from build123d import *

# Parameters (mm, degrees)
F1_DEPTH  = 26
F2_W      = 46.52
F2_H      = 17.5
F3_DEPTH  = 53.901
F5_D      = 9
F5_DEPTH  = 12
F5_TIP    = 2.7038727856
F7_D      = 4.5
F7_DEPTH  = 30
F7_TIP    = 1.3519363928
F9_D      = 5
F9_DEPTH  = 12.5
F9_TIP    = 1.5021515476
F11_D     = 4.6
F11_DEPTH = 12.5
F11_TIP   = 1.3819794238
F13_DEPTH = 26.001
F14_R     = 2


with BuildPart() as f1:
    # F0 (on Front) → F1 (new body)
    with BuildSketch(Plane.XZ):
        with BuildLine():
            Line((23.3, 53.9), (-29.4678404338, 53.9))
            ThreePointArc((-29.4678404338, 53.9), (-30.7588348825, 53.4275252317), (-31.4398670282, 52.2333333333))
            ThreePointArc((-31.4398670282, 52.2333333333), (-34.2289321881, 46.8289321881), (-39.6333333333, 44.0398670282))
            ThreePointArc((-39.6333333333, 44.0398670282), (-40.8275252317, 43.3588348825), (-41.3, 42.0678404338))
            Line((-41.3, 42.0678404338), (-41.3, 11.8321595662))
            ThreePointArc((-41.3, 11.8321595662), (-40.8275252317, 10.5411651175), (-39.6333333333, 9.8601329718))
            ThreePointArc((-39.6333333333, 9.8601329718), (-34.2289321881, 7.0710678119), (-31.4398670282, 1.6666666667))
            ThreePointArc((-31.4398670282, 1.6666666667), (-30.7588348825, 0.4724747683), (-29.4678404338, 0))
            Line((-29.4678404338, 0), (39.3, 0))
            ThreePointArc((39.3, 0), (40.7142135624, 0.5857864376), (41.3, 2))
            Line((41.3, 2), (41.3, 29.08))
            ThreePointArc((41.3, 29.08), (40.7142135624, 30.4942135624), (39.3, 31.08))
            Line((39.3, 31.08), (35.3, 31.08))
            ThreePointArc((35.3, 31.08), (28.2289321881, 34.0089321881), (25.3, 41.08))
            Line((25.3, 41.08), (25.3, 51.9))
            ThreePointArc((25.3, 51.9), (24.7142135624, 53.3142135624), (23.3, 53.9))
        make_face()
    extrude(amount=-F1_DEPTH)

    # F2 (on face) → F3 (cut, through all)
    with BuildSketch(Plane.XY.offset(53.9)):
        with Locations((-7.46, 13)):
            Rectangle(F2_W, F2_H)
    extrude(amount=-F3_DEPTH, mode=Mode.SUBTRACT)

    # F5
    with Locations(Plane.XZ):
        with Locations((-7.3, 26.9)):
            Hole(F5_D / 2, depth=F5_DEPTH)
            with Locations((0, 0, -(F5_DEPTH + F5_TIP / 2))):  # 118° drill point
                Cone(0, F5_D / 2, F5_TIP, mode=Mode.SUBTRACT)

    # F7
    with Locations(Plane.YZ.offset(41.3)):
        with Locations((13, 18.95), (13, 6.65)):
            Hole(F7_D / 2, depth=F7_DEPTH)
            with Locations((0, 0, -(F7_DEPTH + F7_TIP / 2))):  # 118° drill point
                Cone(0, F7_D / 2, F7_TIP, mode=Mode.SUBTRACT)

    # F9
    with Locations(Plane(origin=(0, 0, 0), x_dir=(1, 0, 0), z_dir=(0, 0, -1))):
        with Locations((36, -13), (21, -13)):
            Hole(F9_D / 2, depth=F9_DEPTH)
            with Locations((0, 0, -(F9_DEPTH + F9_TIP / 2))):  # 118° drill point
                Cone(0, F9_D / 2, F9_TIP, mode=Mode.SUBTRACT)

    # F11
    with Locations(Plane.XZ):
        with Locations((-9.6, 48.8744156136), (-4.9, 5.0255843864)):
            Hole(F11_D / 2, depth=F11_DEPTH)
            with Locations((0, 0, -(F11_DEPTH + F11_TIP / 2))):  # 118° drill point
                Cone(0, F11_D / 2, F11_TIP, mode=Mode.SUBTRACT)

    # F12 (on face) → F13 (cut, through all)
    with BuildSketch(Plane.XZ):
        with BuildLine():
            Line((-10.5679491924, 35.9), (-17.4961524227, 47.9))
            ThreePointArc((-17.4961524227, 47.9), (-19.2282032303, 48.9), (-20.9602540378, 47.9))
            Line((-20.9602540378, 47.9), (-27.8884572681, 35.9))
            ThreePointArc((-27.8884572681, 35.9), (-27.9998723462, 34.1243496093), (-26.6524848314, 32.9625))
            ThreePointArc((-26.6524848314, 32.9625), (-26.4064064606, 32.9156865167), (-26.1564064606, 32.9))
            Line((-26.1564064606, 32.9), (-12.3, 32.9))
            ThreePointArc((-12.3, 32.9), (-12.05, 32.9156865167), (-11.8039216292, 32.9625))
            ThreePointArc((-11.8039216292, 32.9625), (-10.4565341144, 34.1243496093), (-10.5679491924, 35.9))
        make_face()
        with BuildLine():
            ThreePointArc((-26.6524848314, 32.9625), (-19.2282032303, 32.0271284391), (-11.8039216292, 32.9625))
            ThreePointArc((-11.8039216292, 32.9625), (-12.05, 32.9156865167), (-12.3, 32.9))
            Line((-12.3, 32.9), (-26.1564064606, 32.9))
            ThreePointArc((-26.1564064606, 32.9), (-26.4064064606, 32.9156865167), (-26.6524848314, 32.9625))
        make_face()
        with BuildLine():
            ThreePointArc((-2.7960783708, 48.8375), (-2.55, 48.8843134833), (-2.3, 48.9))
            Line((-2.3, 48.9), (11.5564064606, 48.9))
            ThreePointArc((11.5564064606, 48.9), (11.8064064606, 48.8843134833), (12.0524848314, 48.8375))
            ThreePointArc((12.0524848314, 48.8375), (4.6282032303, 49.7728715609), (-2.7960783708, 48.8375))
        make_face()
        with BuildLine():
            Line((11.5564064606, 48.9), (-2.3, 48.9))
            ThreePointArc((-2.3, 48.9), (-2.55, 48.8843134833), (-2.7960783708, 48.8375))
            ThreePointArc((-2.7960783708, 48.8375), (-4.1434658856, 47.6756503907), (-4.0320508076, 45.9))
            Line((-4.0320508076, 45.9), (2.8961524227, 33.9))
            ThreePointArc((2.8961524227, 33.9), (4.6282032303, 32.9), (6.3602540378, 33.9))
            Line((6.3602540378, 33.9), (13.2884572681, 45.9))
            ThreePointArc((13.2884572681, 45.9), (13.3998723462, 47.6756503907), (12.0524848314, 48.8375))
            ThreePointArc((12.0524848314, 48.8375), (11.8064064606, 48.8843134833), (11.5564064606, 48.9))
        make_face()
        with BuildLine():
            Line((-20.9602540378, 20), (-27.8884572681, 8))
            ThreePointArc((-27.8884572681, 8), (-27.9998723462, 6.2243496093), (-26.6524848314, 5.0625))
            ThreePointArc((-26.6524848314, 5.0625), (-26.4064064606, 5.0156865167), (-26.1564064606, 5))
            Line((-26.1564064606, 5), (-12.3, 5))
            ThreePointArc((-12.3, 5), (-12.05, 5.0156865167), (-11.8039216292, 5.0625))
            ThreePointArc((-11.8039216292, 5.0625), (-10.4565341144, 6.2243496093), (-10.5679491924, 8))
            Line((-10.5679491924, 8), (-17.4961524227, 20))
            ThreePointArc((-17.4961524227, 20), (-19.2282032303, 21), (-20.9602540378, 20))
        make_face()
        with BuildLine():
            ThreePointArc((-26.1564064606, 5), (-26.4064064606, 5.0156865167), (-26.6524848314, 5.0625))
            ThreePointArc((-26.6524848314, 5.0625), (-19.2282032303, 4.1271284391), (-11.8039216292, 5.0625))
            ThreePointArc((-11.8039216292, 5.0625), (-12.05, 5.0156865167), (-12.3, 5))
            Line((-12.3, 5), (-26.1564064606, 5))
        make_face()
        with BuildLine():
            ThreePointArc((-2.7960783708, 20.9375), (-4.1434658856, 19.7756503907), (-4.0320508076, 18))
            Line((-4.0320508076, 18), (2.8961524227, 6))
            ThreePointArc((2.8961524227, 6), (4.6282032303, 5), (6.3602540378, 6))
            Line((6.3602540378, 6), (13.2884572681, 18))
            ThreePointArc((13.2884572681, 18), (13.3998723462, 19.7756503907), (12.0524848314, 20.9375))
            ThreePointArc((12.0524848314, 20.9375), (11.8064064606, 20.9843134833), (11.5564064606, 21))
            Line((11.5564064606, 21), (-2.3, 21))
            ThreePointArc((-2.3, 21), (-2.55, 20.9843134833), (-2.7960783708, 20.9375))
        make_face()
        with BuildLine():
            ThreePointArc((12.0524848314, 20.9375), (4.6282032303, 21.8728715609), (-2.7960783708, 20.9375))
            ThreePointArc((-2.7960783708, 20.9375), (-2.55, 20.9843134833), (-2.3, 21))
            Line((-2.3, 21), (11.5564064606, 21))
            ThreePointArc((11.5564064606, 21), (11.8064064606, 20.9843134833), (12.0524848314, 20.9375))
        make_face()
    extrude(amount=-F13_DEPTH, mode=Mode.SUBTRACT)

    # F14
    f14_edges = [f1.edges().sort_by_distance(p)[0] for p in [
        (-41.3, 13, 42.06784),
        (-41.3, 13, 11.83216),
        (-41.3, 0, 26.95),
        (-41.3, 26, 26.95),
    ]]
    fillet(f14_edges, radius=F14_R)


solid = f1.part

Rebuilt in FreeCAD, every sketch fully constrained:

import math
import FreeCAD as App
import Part
import Sketcher
Q = App.Units.Quantity


def edges_at(feature, points):
    """Names of the edges that pass closest to the given points."""
    edges = feature.Shape.Edges
    near = lambda p: min(range(len(edges)), key=lambda i: edges[i].distToShape(Part.Vertex(*p))[0])
    return sorted({f"Edge{near(p) + 1}" for p in points})


def add_polygon(sketch, points):
    """Adds a closed chain of lines whose ends are joined by coincident constraints."""
    first, n = sketch.GeometryCount, len(points)
    for a, b in zip(points, points[1:] + points[:1]):
        sketch.addGeometry(Part.LineSegment(App.Vector(*a, 0), App.Vector(*b, 0)), False)
    for i in range(n):
        sketch.addConstraint(Sketcher.Constraint("Coincident", first + i, 2, first + (i + 1) % n, 1))

doc = App.newDocument("Part")
params = doc.addObject("Spreadsheet::Sheet", "Params")
for row, (alias, value) in enumerate([
    ("sketch1_radius", "2 mm"),
    ("sketch1_radius2", "10 mm"),
    ("sketch1_width", "4 mm"),
    ("sketch1_height", "27.08 mm"),
    ("sketch1_height2", "10.82 mm"),
    ("pad1_length", "26 mm"),
    ("sketch2_height", "17.5 mm"),
    ("sketch2_width", "46.52 mm"),
    ("sketch3_diameter", "9 mm"),
    ("hole_diameter", "9 mm"),
    ("hole_depth", "12 mm"),
    ("sketch4_diameter", "4.5 mm"),
    ("hole2_diameter", "4.5 mm"),
    ("hole2_depth", "30 mm"),
    ("sketch5_diameter", "5 mm"),
    ("hole3_diameter", "5 mm"),
    ("hole3_depth", "12.5 mm"),
    ("sketch6_diameter", "4.6 mm"),
    ("hole4_diameter", "4.6 mm"),
    ("hole4_depth", "12.5 mm"),
    ("sketch7_radius", "2 mm"),
    ("fillet_radius", "2 mm"),
], start=1):
    params.set(f"A{row}", alias)
    params.set(f"B{row}", "=" + value)
    params.setAlias(f"B{row}", alias)

body = doc.addObject("PartDesign::Body", "Body")

sketch1 = body.newObject("Sketcher::SketchObject", "Sketch")
sketch1.AttachmentSupport = (doc.getObject("XZ_Plane"), [""])
sketch1.MapMode = "FlatFace"
sketch1.addGeometry([
    Part.LineSegment(App.Vector(23.3, 53.9, 0), App.Vector(-29.5, 53.9, 0)),
    Part.ArcOfCircle(Part.Circle(App.Vector(-29.5, 51.9, 0), App.Vector(0, 0, 1), 2), math.radians(90), math.radians(170)),
    Part.ArcOfCircle(Part.Circle(App.Vector(-41.3, 53.9, 0), App.Vector(0, 0, 1), 10), math.radians(-80), math.radians(-10)),
    Part.ArcOfCircle(Part.Circle(App.Vector(-39.3, 42.1, 0), App.Vector(0, 0, 1), 2), math.radians(100), math.radians(180)),
    Part.LineSegment(App.Vector(-41.3, 42.1, 0), App.Vector(-41.3, 11.8, 0)),
    Part.ArcOfCircle(Part.Circle(App.Vector(-39.3, 11.8, 0), App.Vector(0, 0, 1), 2), math.radians(180), math.radians(260)),
    Part.ArcOfCircle(Part.Circle(App.Vector(-41.3, 0, 0), App.Vector(0, 0, 1), 10), math.radians(10), math.radians(80)),
    Part.ArcOfCircle(Part.Circle(App.Vector(-29.5, 2, 0), App.Vector(0, 0, 1), 2), math.radians(-170), math.radians(-90)),
    Part.LineSegment(App.Vector(-29.5, 0, 0), App.Vector(39.3, 0, 0)),
    Part.ArcOfCircle(Part.Circle(App.Vector(39.3, 2, 0), App.Vector(0, 0, 1), 2), math.radians(-90), math.radians(0)),
    Part.LineSegment(App.Vector(41.3, 2, 0), App.Vector(41.3, 29.1, 0)),
    Part.ArcOfCircle(Part.Circle(App.Vector(39.3, 29.1, 0), App.Vector(0, 0, 1), 2), math.radians(0), math.radians(90)),
    Part.LineSegment(App.Vector(39.3, 31.1, 0), App.Vector(35.3, 31.1, 0)),
    Part.ArcOfCircle(Part.Circle(App.Vector(35.3, 41.1, 0), App.Vector(0, 0, 1), 10), math.radians(180), math.radians(270)),
    Part.LineSegment(App.Vector(25.3, 41.1, 0), App.Vector(25.3, 51.9, 0)),
    Part.ArcOfCircle(Part.Circle(App.Vector(23.3, 51.9, 0), App.Vector(0, 0, 1), 2), math.radians(0), math.radians(90)),
], False)
sketch1.addConstraint([
    Sketcher.Constraint("Tangent", 0, 2, 1, 1),
    Sketcher.Constraint("Tangent", 1, 2, 2, 2),
    Sketcher.Constraint("Tangent", 2, 1, 3, 1),
    Sketcher.Constraint("Tangent", 3, 2, 4, 1),
    Sketcher.Constraint("Tangent", 4, 2, 5, 1),
    Sketcher.Constraint("Tangent", 5, 2, 6, 2),
    Sketcher.Constraint("Tangent", 6, 1, 7, 1),
    Sketcher.Constraint("Tangent", 7, 2, 8, 1),
    Sketcher.Constraint("Tangent", 8, 2, 9, 1),
    Sketcher.Constraint("Tangent", 9, 2, 10, 1),
    Sketcher.Constraint("Tangent", 10, 2, 11, 1),
    Sketcher.Constraint("Tangent", 11, 2, 12, 1),
    Sketcher.Constraint("Tangent", 12, 2, 13, 2),
    Sketcher.Constraint("Tangent", 13, 1, 14, 1),
    Sketcher.Constraint("Tangent", 14, 2, 15, 1),
    Sketcher.Constraint("Tangent", 15, 2, 0, 1),
    Sketcher.Constraint("Horizontal", 0),
    Sketcher.Constraint("Vertical", 4),
    Sketcher.Constraint("Horizontal", 8),
    Sketcher.Constraint("Vertical", 10),
    Sketcher.Constraint("Horizontal", 12),
    Sketcher.Constraint("Vertical", 14),
    Sketcher.Constraint("Equal", 1, 3),
    Sketcher.Constraint("Equal", 3, 5),
    Sketcher.Constraint("Equal", 2, 6),
    Sketcher.Constraint("Equal", 5, 7),
    Sketcher.Constraint("Equal", 7, 9),
    Sketcher.Constraint("Equal", 9, 11),
    Sketcher.Constraint("Equal", 6, 13),
    Sketcher.Constraint("Equal", 11, 15),
    Sketcher.Constraint("PointOnObject", 6, 3, -1),
    Sketcher.Constraint("PointOnObject", 7, 2, -1),
    Sketcher.Constraint("Horizontal", 2, 3, 0, 2),
    Sketcher.Constraint("Vertical", 2, 3, 6, 3),
    Sketcher.Constraint("Vertical", 6, 3, 3, 2),
    Sketcher.Constraint("Radius", 1, Q("2 mm")),
    Sketcher.Constraint("Radius", 2, Q("10 mm")),
    Sketcher.Constraint("DistanceX", 12, 2, 12, 1, Q("4 mm")),
    Sketcher.Constraint("DistanceY", 10, 1, 10, 2, Q("27.08 mm")),
    Sketcher.Constraint("DistanceY", 14, 1, 14, 2, Q("10.82 mm")),
    Sketcher.Constraint("DistanceX", 2, 3, -1, 1, Q("41.3 mm")),
    Sketcher.Constraint("DistanceX", -1, 1, 9, 3, Q("39.3 mm")),
])
sketch1.setExpression("Constraints[35]", "Params.sketch1_radius")
sketch1.setExpression("Constraints[36]", "Params.sketch1_radius2")
sketch1.setExpression("Constraints[37]", "Params.sketch1_width")
sketch1.setExpression("Constraints[38]", "Params.sketch1_height")
sketch1.setExpression("Constraints[39]", "Params.sketch1_height2")
pad1 = body.newObject("PartDesign::Pad", "Pad")
pad1.Profile = sketch1
pad1.setExpression("Length", "Params.pad1_length")
pad1.Reversed = True

sketch2 = body.newObject("Sketcher::SketchObject", "Sketch001")
sketch2.AttachmentSupport = (doc.getObject("XY_Plane"), [""])
sketch2.MapMode = "FlatFace"
sketch2.AttachmentOffset = App.Placement(App.Vector(0, 0, 53.9), App.Rotation())
add_polygon(sketch2, [(-31, 22), (-31, 4), (16, 4), (16, 22)])
sketch2.addConstraint([
    Sketcher.Constraint("Vertical", 0),
    Sketcher.Constraint("Horizontal", 1),
    Sketcher.Constraint("Vertical", 2),
    Sketcher.Constraint("Horizontal", 3),
    Sketcher.Constraint("DistanceY", 0, 2, 0, 1, Q("17.5 mm")),
    Sketcher.Constraint("DistanceX", 1, 1, 1, 2, Q("46.52 mm")),
    Sketcher.Constraint("DistanceX", -1, 1, 1, 2, Q("15.8 mm")),
    Sketcher.Constraint("DistanceY", -1, 1, 0, 2, Q("4.25 mm")),
])
sketch2.setExpression("Constraints[8]", "Params.sketch2_height")
sketch2.setExpression("Constraints[9]", "Params.sketch2_width")
pocket1 = body.newObject("PartDesign::Pocket", "Pocket")
pocket1.Profile = sketch2
pocket1.Type = "ThroughAll"

sketch3 = body.newObject("Sketcher::SketchObject", "Sketch002")
sketch3.AttachmentSupport = (doc.getObject("XZ_Plane"), [""])
sketch3.MapMode = "FlatFace"
sketch3.addGeometry(Part.Circle(App.Vector(-7.3, 26.9, 0), App.Vector(0, 0, 1), 4.5), False)
sketch3.addConstraint([
    Sketcher.Constraint("Diameter", 0, Q("9 mm")),
    Sketcher.Constraint("DistanceX", 0, 3, -1, 1, Q("7.3 mm")),
    Sketcher.Constraint("DistanceY", -1, 1, 0, 3, Q("26.9 mm")),
])
sketch3.setExpression("Constraints[0]", "Params.sketch3_diameter")
doc.recompute()
hole = body.newObject("PartDesign::Hole", "Hole")
hole.Profile = sketch3
hole.ThreadType = "None"
hole.setExpression("Diameter", "Params.hole_diameter")
hole.DepthType = "Dimension"
hole.setExpression("Depth", "Params.hole_depth")
hole.DrillPoint = "Angled"
hole.DrillPointAngle = 118

sketch4 = body.newObject("Sketcher::SketchObject", "Sketch003")
sketch4.AttachmentSupport = (doc.getObject("YZ_Plane"), [""])
sketch4.MapMode = "FlatFace"
sketch4.AttachmentOffset = App.Placement(App.Vector(0, 0, 41.3), App.Rotation())
sketch4.addGeometry([
    Part.Circle(App.Vector(13, 18.9, 0), App.Vector(0, 0, 1), 2.2),
    Part.Circle(App.Vector(13, 6.7, 0), App.Vector(0, 0, 1), 2.2),
], False)
sketch4.addConstraint([
    Sketcher.Constraint("Equal", 0, 1),
    Sketcher.Constraint("Vertical", 0, 3, 1, 3),
    Sketcher.Constraint("Diameter", 0, Q("4.5 mm")),
    Sketcher.Constraint("DistanceX", -1, 1, 0, 3, Q("13 mm")),
    Sketcher.Constraint("DistanceY", 1, 3, 0, 3, Q("12.3 mm")),
    Sketcher.Constraint("DistanceY", -1, 1, 0, 3, Q("18.95 mm")),
])
sketch4.setExpression("Constraints[2]", "Params.sketch4_diameter")
doc.recompute()
hole2 = body.newObject("PartDesign::Hole", "Hole001")
hole2.Profile = sketch4
hole2.ThreadType = "None"
hole2.setExpression("Diameter", "Params.hole2_diameter")
hole2.DepthType = "Dimension"
hole2.setExpression("Depth", "Params.hole2_depth")
hole2.DrillPoint = "Angled"
hole2.DrillPointAngle = 118

sketch5 = body.newObject("Sketcher::SketchObject", "Sketch004")
sketch5.AttachmentSupport = (doc.getObject("XY_Plane"), [""])
sketch5.MapMode = "FlatFace"
sketch5.addGeometry([
    Part.Circle(App.Vector(36, 13, 0), App.Vector(0, 0, 1), 2.5),
    Part.Circle(App.Vector(21, 13, 0), App.Vector(0, 0, 1), 2.5),
], False)
sketch5.addConstraint([
    Sketcher.Constraint("Equal", 0, 1),
    Sketcher.Constraint("Horizontal", 0, 3, 1, 3),
    Sketcher.Constraint("Diameter", 0, Q("5 mm")),
    Sketcher.Constraint("DistanceX", -1, 1, 0, 3, Q("36 mm")),
    Sketcher.Constraint("DistanceY", -1, 1, 0, 3, Q("13 mm")),
    Sketcher.Constraint("DistanceX", -1, 1, 1, 3, Q("21 mm")),
])
sketch5.setExpression("Constraints[2]", "Params.sketch5_diameter")
doc.recompute()
hole3 = body.newObject("PartDesign::Hole", "Hole002")
hole3.Profile = sketch5
hole3.ThreadType = "None"
hole3.setExpression("Diameter", "Params.hole3_diameter")
hole3.DepthType = "Dimension"
hole3.setExpression("Depth", "Params.hole3_depth")
hole3.DrillPoint = "Angled"
hole3.DrillPointAngle = 118
hole3.Reversed = True

sketch6 = body.newObject("Sketcher::SketchObject", "Sketch005")
sketch6.AttachmentSupport = (doc.getObject("XZ_Plane"), [""])
sketch6.MapMode = "FlatFace"
sketch6.addGeometry([
    Part.Circle(App.Vector(-9.6, 48.9, 0), App.Vector(0, 0, 1), 2.3),
    Part.Circle(App.Vector(-4.9, 5, 0), App.Vector(0, 0, 1), 2.3),
], False)
sketch6.addConstraint([
    Sketcher.Constraint("Equal", 0, 1),
    Sketcher.Constraint("Diameter", 0, Q("4.6 mm")),
    Sketcher.Constraint("DistanceX", 0, 3, -1, 1, Q("9.6 mm")),
    Sketcher.Constraint("DistanceX", 1, 3, -1, 1, Q("4.9 mm")),
    Sketcher.Constraint("DistanceY", 1, 3, 0, 3, Q("43.848831 mm")),
    Sketcher.Constraint("DistanceY", -1, 1, 0, 3, Q("48.874416 mm")),
])
sketch6.setExpression("Constraints[1]", "Params.sketch6_diameter")
doc.recompute()
hole4 = body.newObject("PartDesign::Hole", "Hole003")
hole4.Profile = sketch6
hole4.ThreadType = "None"
hole4.setExpression("Diameter", "Params.hole4_diameter")
hole4.DepthType = "Dimension"
hole4.setExpression("Depth", "Params.hole4_depth")
hole4.DrillPoint = "Angled"
hole4.DrillPointAngle = 118

sketch7 = body.newObject("Sketcher::SketchObject", "Sketch006")
sketch7.AttachmentSupport = (doc.getObject("XZ_Plane"), [""])
sketch7.MapMode = "FlatFace"
sketch7.addGeometry([
    Part.LineSegment(App.Vector(-10.6, 35.9, 0), App.Vector(-17.5, 47.9, 0)),
    Part.ArcOfCircle(Part.Circle(App.Vector(-19.2, 46.9, 0), App.Vector(0, 0, 1), 2), math.radians(30), math.radians(150)),
    Part.LineSegment(App.Vector(-21, 47.9, 0), App.Vector(-27.9, 35.9, 0)),
    Part.ArcOfCircle(Part.Circle(App.Vector(-26.2, 34.9, 0), App.Vector(0, 0, 1), 2), math.radians(150), math.radians(256)),
    Part.ArcOfCircle(Part.Circle(App.Vector(-19.2, 62, 0), App.Vector(0, 0, 1), 29.9), math.radians(-104), math.radians(-76)),
    Part.ArcOfCircle(Part.Circle(App.Vector(-12.3, 34.9, 0), App.Vector(0, 0, 1), 2), math.radians(-76), math.radians(30)),
    Part.ArcOfCircle(Part.Circle(App.Vector(4.6, 19.8, 0), App.Vector(0, 0, 1), 29.9), math.radians(76), math.radians(104)),
    Part.ArcOfCircle(Part.Circle(App.Vector(-2.3, 46.9, 0), App.Vector(0, 0, 1), 2), math.radians(104), math.radians(210)),
    Part.LineSegment(App.Vector(-4, 45.9, 0), App.Vector(2.9, 33.9, 0)),
    Part.ArcOfCircle(Part.Circle(App.Vector(4.6, 34.9, 0), App.Vector(0, 0, 1), 2), math.radians(-150), math.radians(-30)),
    Part.LineSegment(App.Vector(6.4, 33.9, 0), App.Vector(13.3, 45.9, 0)),
    Part.ArcOfCircle(Part.Circle(App.Vector(11.6, 46.9, 0), App.Vector(0, 0, 1), 2), math.radians(-30), math.radians(76)),
    Part.LineSegment(App.Vector(-21, 20, 0), App.Vector(-27.9, 8, 0)),
    Part.ArcOfCircle(Part.Circle(App.Vector(-26.2, 7, 0), App.Vector(0, 0, 1), 2), math.radians(150), math.radians(256)),
    Part.ArcOfCircle(Part.Circle(App.Vector(-19.2, 34.1, 0), App.Vector(0, 0, 1), 29.9), math.radians(-104), math.radians(-76)),
    Part.ArcOfCircle(Part.Circle(App.Vector(-12.3, 7, 0), App.Vector(0, 0, 1), 2), math.radians(-76), math.radians(30)),
    Part.LineSegment(App.Vector(-10.6, 8, 0), App.Vector(-17.5, 20, 0)),
    Part.ArcOfCircle(Part.Circle(App.Vector(-19.2, 19, 0), App.Vector(0, 0, 1), 2), math.radians(30), math.radians(150)),
    Part.ArcOfCircle(Part.Circle(App.Vector(-2.3, 19, 0), App.Vector(0, 0, 1), 2), math.radians(104), math.radians(210)),
    Part.LineSegment(App.Vector(-4, 18, 0), App.Vector(2.9, 6, 0)),
    Part.ArcOfCircle(Part.Circle(App.Vector(4.6, 7, 0), App.Vector(0, 0, 1), 2), math.radians(-150), math.radians(-30)),
    Part.LineSegment(App.Vector(6.4, 6, 0), App.Vector(13.3, 18, 0)),
    Part.ArcOfCircle(Part.Circle(App.Vector(11.6, 19, 0), App.Vector(0, 0, 1), 2), math.radians(-30), math.radians(76)),
    Part.ArcOfCircle(Part.Circle(App.Vector(4.6, -8.1, 0), App.Vector(0, 0, 1), 29.9), math.radians(76), math.radians(104)),
], False)
sketch7.addConstraint([
    Sketcher.Constraint("Tangent", 0, 2, 1, 1),
    Sketcher.Constraint("Tangent", 1, 2, 2, 1),
    Sketcher.Constraint("Tangent", 2, 2, 3, 1),
    Sketcher.Constraint("Tangent", 3, 2, 4, 1),
    Sketcher.Constraint("Tangent", 4, 2, 5, 1),
    Sketcher.Constraint("Tangent", 5, 2, 0, 1),
    Sketcher.Constraint("Tangent", 6, 2, 7, 1),
    Sketcher.Constraint("Tangent", 7, 2, 8, 1),
    Sketcher.Constraint("Tangent", 8, 2, 9, 1),
    Sketcher.Constraint("Tangent", 9, 2, 10, 1),
    Sketcher.Constraint("Tangent", 10, 2, 11, 1),
    Sketcher.Constraint("Tangent", 11, 2, 6, 1),
    Sketcher.Constraint("Tangent", 12, 2, 13, 1),
    Sketcher.Constraint("Tangent", 13, 2, 14, 1),
    Sketcher.Constraint("Tangent", 14, 2, 15, 1),
    Sketcher.Constraint("Tangent", 15, 2, 16, 1),
    Sketcher.Constraint("Tangent", 16, 2, 17, 1),
    Sketcher.Constraint("Tangent", 17, 2, 12, 1),
    Sketcher.Constraint("Tangent", 18, 2, 19, 1),
    Sketcher.Constraint("Tangent", 19, 2, 20, 1),
    Sketcher.Constraint("Tangent", 20, 2, 21, 1),
    Sketcher.Constraint("Tangent", 21, 2, 22, 1),
    Sketcher.Constraint("Tangent", 22, 2, 23, 1),
    Sketcher.Constraint("Tangent", 23, 2, 18, 1),
    Sketcher.Constraint("Equal", 1, 3),
    Sketcher.Constraint("Equal", 3, 5),
    Sketcher.Constraint("Equal", 4, 6),
    Sketcher.Constraint("Equal", 5, 7),
    Sketcher.Constraint("Equal", 7, 9),
    Sketcher.Constraint("Equal", 9, 11),
    Sketcher.Constraint("Equal", 11, 13),
    Sketcher.Constraint("Equal", 6, 14),
    Sketcher.Constraint("Equal", 13, 15),
    Sketcher.Constraint("Equal", 15, 17),
    Sketcher.Constraint("Equal", 17, 18),
    Sketcher.Constraint("Equal", 18, 20),
    Sketcher.Constraint("Equal", 20, 22),
    Sketcher.Constraint("Equal", 14, 23),
    Sketcher.Constraint("Parallel", 0, 8),
    Sketcher.Constraint("Parallel", 2, 10),
    Sketcher.Constraint("Parallel", 10, 12),
    Sketcher.Constraint("Parallel", 8, 16),
    Sketcher.Constraint("Parallel", 16, 19),
    Sketcher.Constraint("Parallel", 12, 21),
    Sketcher.Constraint("Horizontal", 3, 3, 5, 3),
    Sketcher.Constraint("Horizontal", 1, 3, 7, 3),
    Sketcher.Constraint("Horizontal", 5, 3, 9, 3),
    Sketcher.Constraint("Horizontal", 7, 3, 11, 3),
    Sketcher.Constraint("Horizontal", 13, 3, 15, 3),
    Sketcher.Constraint("Horizontal", 17, 3, 18, 3),
    Sketcher.Constraint("Horizontal", 15, 3, 20, 3),
    Sketcher.Constraint("Horizontal", 18, 3, 22, 3),
    Sketcher.Constraint("Horizontal", 0, 2, 1, 2),
    Sketcher.Constraint("Vertical", 3, 3, 13, 3),
    Sketcher.Constraint("Vertical", 4, 3, 14, 3),
    Sketcher.Constraint("Vertical", 7, 3, 18, 3),
    Sketcher.Constraint("Radius", 1, Q("2 mm")),
    Sketcher.Constraint("Angle", 0, Q("120 deg")),
    Sketcher.Constraint("DistanceY", -1, 1, 13, 3, Q("7 mm")),
    Sketcher.Constraint("DistanceY", -1, 1, 17, 3, Q("19 mm")),
    Sketcher.Constraint("DistanceX", 5, 3, 7, 3, Q("10 mm")),
    Sketcher.Constraint("DistanceY", -1, 1, 1, 3, Q("46.9 mm")),
    Sketcher.Constraint("DistanceX", 5, 3, -1, 1, Q("12.3 mm")),
    Sketcher.Constraint("Radius", 4, Q("29.93189 mm")),
])
sketch7.setExpression("Constraints[56]", "Params.sketch7_radius")
pocket2 = body.newObject("PartDesign::Pocket", "Pocket001")
pocket2.Profile = sketch7
pocket2.Type = "ThroughAll"
doc.recompute()

fillet = body.newObject("PartDesign::Fillet", "Fillet")
fillet.Base = (pocket2, edges_at(pocket2, [
    (-41.3, 13, 42.068),
    (-41.3, 13, 11.832),
    (-41.3, 0, 26.95),
    (-41.3, 26, 26.95),
]))
fillet.setExpression("Radius", "Params.fillet_radius")

doc.recompute()
